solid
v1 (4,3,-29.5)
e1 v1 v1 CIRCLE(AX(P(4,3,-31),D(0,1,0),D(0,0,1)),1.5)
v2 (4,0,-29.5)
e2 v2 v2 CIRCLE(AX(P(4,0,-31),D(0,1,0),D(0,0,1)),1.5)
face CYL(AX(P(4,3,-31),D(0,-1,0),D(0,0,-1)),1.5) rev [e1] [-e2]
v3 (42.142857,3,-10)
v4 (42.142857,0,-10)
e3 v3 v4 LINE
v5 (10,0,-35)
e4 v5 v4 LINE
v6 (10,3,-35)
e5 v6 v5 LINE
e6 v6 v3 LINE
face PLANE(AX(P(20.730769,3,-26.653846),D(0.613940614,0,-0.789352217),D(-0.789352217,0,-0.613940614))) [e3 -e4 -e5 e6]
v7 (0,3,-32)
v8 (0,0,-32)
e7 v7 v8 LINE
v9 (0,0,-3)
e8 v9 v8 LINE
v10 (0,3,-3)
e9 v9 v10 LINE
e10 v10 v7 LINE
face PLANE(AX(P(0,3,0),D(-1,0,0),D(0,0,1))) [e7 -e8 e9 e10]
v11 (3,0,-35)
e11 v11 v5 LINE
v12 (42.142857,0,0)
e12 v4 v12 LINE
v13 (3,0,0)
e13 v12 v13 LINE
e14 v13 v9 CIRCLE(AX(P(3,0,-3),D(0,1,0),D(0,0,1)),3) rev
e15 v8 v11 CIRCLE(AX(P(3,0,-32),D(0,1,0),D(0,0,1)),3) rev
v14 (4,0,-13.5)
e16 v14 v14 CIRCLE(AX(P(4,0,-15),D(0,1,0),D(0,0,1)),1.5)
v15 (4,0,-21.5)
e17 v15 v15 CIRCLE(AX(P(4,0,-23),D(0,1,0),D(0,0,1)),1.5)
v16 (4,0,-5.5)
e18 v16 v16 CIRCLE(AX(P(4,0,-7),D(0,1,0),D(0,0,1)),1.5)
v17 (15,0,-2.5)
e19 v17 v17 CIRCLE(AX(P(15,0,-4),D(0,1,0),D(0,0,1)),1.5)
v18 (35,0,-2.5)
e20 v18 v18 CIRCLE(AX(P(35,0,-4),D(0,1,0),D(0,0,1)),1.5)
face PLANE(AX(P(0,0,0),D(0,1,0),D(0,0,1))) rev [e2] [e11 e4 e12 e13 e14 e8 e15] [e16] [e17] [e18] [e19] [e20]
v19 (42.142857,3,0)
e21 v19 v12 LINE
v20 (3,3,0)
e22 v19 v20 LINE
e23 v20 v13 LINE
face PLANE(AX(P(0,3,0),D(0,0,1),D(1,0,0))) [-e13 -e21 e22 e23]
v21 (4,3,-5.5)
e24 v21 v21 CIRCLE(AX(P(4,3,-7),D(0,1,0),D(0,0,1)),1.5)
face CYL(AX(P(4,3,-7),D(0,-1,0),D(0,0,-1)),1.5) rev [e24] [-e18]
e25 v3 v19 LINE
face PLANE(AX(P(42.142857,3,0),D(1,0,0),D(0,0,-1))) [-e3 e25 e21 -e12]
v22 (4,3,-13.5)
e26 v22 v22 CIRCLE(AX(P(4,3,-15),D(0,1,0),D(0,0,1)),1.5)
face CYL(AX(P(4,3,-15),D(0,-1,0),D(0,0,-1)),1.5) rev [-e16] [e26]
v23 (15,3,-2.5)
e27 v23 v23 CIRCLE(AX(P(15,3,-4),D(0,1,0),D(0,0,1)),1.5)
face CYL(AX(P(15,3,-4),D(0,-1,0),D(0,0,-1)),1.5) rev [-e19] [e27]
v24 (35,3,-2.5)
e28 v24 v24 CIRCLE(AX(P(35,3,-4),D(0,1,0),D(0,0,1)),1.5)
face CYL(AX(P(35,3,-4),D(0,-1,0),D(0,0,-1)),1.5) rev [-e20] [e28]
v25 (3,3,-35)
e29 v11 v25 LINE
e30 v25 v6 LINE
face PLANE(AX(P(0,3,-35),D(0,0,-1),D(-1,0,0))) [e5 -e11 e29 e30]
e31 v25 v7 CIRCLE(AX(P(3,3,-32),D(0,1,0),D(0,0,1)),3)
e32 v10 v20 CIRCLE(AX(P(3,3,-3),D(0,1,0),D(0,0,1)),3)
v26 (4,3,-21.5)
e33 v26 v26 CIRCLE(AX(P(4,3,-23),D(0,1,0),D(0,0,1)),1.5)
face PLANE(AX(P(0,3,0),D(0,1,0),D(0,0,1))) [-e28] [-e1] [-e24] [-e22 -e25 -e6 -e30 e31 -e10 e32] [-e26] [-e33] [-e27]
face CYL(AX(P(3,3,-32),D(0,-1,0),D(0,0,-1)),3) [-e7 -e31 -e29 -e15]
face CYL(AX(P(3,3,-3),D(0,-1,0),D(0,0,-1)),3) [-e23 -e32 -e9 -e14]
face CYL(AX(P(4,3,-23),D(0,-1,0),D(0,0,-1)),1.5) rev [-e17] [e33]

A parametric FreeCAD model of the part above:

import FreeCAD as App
import Part
import Sketcher
from FreeCAD import Vector


def edges_at(feature, points):
    """Names of the edges that pass closest to the given points."""
    edges = feature.Shape.Edges
    near = lambda p: min(range(len(edges)), key=lambda i: edges[i].distToShape(Part.Vertex(*p))[0])
    return sorted({f"Edge{near(p) + 1}" for p in points})


def add_polygon(sketch, points):
    """Adds a closed chain of lines whose ends are joined by coincident constraints."""
    first, n = sketch.GeometryCount, len(points)
    for a, b in zip(points, points[1:] + points[:1]):
        sketch.addGeometry(Part.LineSegment(App.Vector(*a, 0), App.Vector(*b, 0)), False)
    for i in range(n):
        sketch.addConstraint(Sketcher.Constraint("Coincident", first + i, 2, first + (i + 1) % n, 1))

doc = App.newDocument("Part")
body = doc.addObject("PartDesign::Body", "Body")

sketch1 = doc.addObject("Sketcher::SketchObject", "Sketch")
body.addObject(sketch1)
sketch1.AttachmentSupport = (doc.XZ_Plane, [""])
sketch1.MapMode = "FlatFace"
add_polygon(sketch1, [(0, -35), (0, 0), (42.1, 0), (42.1, -10), (10, -35)])
sketch1.addGeometry(Part.Circle(Vector(4, -7, 0), Vector(0, 0, 1), 1.5), False)
sketch1.addGeometry(Part.Circle(Vector(15, -4, 0), Vector(0, 0, 1), 1.5), False)
sketch1.addGeometry(Part.Circle(Vector(4, -15, 0), Vector(0, 0, 1), 1.5), False)
sketch1.addGeometry(Part.Circle(Vector(35, -4, 0), Vector(0, 0, 1), 1.5), False)
sketch1.addGeometry(Part.Circle(Vector(4, -23, 0), Vector(0, 0, 1), 1.5), False)
sketch1.addGeometry(Part.Circle(Vector(4, -31, 0), Vector(0, 0, 1), 1.5), False)
sketch1.addConstraint([
    Sketcher.Constraint("Vertical", 0),
    Sketcher.Constraint("Horizontal", 1),
    Sketcher.Constraint("Vertical", 2),
    Sketcher.Constraint("Horizontal", 4),
    Sketcher.Constraint("Coincident", 0, 2, -1, 1),
    Sketcher.Constraint("Equal", 5, 6),
    Sketcher.Constraint("Equal", 6, 7),
    Sketcher.Constraint("Equal", 7, 8),
    Sketcher.Constraint("Equal", 8, 9),
    Sketcher.Constraint("Equal", 9, 10),
    Sketcher.Constraint("Horizontal", 6, 3, 8, 3),
    Sketcher.Constraint("Vertical", 5, 3, 7, 3),
    Sketcher.Constraint("Vertical", 7, 3, 9, 3),
    Sketcher.Constraint("Vertical", 9, 3, 10, 3),
    Sketcher.Constraint("Equal", 4, 2),
    Sketcher.Constraint("Diameter", 5, 3.0),
    Sketcher.Constraint("DistanceX", 4, 2, 4, 1, 10.0),
    Sketcher.Constraint("DistanceY", 0, 1, 0, 2, 35.0),
    Sketcher.Constraint("DistanceX", -1, 1, 5, 3, 4.0),
    Sketcher.Constraint("DistanceY", 5, 3, -1, 1, 7.0),
    Sketcher.Constraint("DistanceX", -1, 1, 6, 3, 15.0),
    Sketcher.Constraint("DistanceY", 6, 3, -1, 1, 4.0),
    Sketcher.Constraint("DistanceY", 7, 3, -1, 1, 15.0),
    Sketcher.Constraint("DistanceX", -1, 1, 8, 3, 35.0),
    Sketcher.Constraint("DistanceY", 9, 3, -1, 1, 23.0),
    Sketcher.Constraint("DistanceY", 10, 3, -1, 1, 31.0),
    Sketcher.Constraint("Distance", 3, 40.720551),
])
pad1 = doc.addObject("PartDesign::Pad", "Pad")
body.addObject(pad1)
pad1.Profile = sketch1
pad1.Length = 3
pad1.Reversed = True
doc.recompute()

fillet = doc.addObject("PartDesign::Fillet", "Fillet")
body.addObject(fillet)
fillet.Base = (pad1, edges_at(pad1, [(0, 1.5, 0), (0, 1.5, -35)]))
fillet.Radius = 3

doc.recompute()
